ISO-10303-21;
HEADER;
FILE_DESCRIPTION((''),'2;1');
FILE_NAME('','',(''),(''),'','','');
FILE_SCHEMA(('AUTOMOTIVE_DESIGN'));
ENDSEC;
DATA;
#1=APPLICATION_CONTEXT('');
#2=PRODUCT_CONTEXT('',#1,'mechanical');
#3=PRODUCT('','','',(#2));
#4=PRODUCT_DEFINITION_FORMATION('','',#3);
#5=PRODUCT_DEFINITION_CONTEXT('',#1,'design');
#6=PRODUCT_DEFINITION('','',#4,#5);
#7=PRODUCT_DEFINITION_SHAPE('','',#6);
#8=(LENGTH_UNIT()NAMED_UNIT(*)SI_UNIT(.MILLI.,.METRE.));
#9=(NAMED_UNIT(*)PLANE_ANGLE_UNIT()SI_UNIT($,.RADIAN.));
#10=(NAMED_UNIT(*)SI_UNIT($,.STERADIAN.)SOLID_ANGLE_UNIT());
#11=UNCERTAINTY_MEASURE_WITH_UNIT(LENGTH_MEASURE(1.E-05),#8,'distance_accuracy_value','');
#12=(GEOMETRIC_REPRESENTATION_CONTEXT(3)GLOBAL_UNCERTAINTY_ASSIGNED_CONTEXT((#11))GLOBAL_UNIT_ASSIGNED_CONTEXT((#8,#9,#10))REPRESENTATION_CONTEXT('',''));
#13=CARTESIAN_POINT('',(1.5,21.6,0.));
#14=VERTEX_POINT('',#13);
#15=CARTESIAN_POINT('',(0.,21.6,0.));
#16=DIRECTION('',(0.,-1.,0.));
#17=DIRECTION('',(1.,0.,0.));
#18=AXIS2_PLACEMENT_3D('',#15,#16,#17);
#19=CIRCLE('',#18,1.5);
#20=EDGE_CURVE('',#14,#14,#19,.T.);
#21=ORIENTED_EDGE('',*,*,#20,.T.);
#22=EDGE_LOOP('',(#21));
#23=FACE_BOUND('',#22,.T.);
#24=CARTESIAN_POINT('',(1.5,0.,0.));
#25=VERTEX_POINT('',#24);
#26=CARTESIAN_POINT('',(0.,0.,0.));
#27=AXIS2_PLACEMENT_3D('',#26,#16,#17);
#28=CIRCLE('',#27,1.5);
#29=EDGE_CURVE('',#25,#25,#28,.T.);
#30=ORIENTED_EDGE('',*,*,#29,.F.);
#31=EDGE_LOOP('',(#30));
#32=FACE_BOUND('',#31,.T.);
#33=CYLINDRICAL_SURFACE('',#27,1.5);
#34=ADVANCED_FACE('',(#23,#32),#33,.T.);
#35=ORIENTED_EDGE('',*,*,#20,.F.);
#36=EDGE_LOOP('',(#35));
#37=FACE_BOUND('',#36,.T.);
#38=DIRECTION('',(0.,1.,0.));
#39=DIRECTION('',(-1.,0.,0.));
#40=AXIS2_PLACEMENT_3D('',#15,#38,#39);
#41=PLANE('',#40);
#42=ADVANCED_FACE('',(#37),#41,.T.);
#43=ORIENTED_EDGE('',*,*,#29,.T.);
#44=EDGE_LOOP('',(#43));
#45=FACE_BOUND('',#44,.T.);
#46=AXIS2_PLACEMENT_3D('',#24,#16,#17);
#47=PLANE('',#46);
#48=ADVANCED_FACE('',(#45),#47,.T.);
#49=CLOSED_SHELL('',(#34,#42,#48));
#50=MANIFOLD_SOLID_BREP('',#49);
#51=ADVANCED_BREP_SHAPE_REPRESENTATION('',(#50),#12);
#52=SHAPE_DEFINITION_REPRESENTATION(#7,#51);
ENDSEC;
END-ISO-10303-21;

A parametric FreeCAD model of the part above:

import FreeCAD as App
import Part
import Sketcher
from FreeCAD import Vector


def add_polygon(sketch, points):
    """Adds a closed chain of lines whose ends are joined by coincident constraints."""
    first, n = sketch.GeometryCount, len(points)
    for a, b in zip(points, points[1:] + points[:1]):
        sketch.addGeometry(Part.LineSegment(App.Vector(*a, 0), App.Vector(*b, 0)), False)
    for i in range(n):
        sketch.addConstraint(Sketcher.Constraint("Coincident", first + i, 2, first + (i + 1) % n, 1))

doc = App.newDocument("Part")
params = doc.addObject("Spreadsheet::Sheet", "Params")
for row, (alias, value) in enumerate([
    ("sketch1_width", "1.5 mm"),
    ("sketch1_height", "21.6 mm"),
    ("revolution_angle", "360 deg"),
], start=1):
    params.set(f"A{row}", alias)
    params.set(f"B{row}", "=" + value)
    params.setAlias(f"B{row}", alias)

body = doc.addObject("PartDesign::Body", "Body")

# Sketch on XY plane
sketch1 = body.newObject("Sketcher::SketchObject", "Sketch")
sketch1.AttachmentSupport = (doc.getObject("XY_Plane"), [""])
sketch1.MapMode = "FlatFace"
add_polygon(sketch1, [(0, 21.6), (0, 0), (1.5, 0), (1.5, 21.6)])  # lines 0-3
sketch1.addConstraint(Sketcher.Constraint("Vertical", 0))
sketch1.addConstraint(Sketcher.Constraint("Horizontal", 1))
sketch1.addConstraint(Sketcher.Constraint("Vertical", 2))
sketch1.addConstraint(Sketcher.Constraint("Horizontal", 3))
sketch1.addConstraint(Sketcher.Constraint("Coincident", 0, 2, -1, 1))
sketch1.addConstraint(Sketcher.Constraint("DistanceX", 1, 1, 1, 2, 1.5))
sketch1.addConstraint(Sketcher.Constraint("DistanceY", 0, 2, 0, 1, 21.6))
sketch1.setExpression("Constraints[9]", "Params.sketch1_width")
sketch1.setExpression("Constraints[10]", "Params.sketch1_height")
revolution = body.newObject("PartDesign::Revolution", "Revolution")
revolution.Profile = sketch1
revolution.ReferenceAxis = (sketch1, ["V_Axis"])
revolution.setExpression("Angle", "Params.revolution_angle")

doc.recompute()
